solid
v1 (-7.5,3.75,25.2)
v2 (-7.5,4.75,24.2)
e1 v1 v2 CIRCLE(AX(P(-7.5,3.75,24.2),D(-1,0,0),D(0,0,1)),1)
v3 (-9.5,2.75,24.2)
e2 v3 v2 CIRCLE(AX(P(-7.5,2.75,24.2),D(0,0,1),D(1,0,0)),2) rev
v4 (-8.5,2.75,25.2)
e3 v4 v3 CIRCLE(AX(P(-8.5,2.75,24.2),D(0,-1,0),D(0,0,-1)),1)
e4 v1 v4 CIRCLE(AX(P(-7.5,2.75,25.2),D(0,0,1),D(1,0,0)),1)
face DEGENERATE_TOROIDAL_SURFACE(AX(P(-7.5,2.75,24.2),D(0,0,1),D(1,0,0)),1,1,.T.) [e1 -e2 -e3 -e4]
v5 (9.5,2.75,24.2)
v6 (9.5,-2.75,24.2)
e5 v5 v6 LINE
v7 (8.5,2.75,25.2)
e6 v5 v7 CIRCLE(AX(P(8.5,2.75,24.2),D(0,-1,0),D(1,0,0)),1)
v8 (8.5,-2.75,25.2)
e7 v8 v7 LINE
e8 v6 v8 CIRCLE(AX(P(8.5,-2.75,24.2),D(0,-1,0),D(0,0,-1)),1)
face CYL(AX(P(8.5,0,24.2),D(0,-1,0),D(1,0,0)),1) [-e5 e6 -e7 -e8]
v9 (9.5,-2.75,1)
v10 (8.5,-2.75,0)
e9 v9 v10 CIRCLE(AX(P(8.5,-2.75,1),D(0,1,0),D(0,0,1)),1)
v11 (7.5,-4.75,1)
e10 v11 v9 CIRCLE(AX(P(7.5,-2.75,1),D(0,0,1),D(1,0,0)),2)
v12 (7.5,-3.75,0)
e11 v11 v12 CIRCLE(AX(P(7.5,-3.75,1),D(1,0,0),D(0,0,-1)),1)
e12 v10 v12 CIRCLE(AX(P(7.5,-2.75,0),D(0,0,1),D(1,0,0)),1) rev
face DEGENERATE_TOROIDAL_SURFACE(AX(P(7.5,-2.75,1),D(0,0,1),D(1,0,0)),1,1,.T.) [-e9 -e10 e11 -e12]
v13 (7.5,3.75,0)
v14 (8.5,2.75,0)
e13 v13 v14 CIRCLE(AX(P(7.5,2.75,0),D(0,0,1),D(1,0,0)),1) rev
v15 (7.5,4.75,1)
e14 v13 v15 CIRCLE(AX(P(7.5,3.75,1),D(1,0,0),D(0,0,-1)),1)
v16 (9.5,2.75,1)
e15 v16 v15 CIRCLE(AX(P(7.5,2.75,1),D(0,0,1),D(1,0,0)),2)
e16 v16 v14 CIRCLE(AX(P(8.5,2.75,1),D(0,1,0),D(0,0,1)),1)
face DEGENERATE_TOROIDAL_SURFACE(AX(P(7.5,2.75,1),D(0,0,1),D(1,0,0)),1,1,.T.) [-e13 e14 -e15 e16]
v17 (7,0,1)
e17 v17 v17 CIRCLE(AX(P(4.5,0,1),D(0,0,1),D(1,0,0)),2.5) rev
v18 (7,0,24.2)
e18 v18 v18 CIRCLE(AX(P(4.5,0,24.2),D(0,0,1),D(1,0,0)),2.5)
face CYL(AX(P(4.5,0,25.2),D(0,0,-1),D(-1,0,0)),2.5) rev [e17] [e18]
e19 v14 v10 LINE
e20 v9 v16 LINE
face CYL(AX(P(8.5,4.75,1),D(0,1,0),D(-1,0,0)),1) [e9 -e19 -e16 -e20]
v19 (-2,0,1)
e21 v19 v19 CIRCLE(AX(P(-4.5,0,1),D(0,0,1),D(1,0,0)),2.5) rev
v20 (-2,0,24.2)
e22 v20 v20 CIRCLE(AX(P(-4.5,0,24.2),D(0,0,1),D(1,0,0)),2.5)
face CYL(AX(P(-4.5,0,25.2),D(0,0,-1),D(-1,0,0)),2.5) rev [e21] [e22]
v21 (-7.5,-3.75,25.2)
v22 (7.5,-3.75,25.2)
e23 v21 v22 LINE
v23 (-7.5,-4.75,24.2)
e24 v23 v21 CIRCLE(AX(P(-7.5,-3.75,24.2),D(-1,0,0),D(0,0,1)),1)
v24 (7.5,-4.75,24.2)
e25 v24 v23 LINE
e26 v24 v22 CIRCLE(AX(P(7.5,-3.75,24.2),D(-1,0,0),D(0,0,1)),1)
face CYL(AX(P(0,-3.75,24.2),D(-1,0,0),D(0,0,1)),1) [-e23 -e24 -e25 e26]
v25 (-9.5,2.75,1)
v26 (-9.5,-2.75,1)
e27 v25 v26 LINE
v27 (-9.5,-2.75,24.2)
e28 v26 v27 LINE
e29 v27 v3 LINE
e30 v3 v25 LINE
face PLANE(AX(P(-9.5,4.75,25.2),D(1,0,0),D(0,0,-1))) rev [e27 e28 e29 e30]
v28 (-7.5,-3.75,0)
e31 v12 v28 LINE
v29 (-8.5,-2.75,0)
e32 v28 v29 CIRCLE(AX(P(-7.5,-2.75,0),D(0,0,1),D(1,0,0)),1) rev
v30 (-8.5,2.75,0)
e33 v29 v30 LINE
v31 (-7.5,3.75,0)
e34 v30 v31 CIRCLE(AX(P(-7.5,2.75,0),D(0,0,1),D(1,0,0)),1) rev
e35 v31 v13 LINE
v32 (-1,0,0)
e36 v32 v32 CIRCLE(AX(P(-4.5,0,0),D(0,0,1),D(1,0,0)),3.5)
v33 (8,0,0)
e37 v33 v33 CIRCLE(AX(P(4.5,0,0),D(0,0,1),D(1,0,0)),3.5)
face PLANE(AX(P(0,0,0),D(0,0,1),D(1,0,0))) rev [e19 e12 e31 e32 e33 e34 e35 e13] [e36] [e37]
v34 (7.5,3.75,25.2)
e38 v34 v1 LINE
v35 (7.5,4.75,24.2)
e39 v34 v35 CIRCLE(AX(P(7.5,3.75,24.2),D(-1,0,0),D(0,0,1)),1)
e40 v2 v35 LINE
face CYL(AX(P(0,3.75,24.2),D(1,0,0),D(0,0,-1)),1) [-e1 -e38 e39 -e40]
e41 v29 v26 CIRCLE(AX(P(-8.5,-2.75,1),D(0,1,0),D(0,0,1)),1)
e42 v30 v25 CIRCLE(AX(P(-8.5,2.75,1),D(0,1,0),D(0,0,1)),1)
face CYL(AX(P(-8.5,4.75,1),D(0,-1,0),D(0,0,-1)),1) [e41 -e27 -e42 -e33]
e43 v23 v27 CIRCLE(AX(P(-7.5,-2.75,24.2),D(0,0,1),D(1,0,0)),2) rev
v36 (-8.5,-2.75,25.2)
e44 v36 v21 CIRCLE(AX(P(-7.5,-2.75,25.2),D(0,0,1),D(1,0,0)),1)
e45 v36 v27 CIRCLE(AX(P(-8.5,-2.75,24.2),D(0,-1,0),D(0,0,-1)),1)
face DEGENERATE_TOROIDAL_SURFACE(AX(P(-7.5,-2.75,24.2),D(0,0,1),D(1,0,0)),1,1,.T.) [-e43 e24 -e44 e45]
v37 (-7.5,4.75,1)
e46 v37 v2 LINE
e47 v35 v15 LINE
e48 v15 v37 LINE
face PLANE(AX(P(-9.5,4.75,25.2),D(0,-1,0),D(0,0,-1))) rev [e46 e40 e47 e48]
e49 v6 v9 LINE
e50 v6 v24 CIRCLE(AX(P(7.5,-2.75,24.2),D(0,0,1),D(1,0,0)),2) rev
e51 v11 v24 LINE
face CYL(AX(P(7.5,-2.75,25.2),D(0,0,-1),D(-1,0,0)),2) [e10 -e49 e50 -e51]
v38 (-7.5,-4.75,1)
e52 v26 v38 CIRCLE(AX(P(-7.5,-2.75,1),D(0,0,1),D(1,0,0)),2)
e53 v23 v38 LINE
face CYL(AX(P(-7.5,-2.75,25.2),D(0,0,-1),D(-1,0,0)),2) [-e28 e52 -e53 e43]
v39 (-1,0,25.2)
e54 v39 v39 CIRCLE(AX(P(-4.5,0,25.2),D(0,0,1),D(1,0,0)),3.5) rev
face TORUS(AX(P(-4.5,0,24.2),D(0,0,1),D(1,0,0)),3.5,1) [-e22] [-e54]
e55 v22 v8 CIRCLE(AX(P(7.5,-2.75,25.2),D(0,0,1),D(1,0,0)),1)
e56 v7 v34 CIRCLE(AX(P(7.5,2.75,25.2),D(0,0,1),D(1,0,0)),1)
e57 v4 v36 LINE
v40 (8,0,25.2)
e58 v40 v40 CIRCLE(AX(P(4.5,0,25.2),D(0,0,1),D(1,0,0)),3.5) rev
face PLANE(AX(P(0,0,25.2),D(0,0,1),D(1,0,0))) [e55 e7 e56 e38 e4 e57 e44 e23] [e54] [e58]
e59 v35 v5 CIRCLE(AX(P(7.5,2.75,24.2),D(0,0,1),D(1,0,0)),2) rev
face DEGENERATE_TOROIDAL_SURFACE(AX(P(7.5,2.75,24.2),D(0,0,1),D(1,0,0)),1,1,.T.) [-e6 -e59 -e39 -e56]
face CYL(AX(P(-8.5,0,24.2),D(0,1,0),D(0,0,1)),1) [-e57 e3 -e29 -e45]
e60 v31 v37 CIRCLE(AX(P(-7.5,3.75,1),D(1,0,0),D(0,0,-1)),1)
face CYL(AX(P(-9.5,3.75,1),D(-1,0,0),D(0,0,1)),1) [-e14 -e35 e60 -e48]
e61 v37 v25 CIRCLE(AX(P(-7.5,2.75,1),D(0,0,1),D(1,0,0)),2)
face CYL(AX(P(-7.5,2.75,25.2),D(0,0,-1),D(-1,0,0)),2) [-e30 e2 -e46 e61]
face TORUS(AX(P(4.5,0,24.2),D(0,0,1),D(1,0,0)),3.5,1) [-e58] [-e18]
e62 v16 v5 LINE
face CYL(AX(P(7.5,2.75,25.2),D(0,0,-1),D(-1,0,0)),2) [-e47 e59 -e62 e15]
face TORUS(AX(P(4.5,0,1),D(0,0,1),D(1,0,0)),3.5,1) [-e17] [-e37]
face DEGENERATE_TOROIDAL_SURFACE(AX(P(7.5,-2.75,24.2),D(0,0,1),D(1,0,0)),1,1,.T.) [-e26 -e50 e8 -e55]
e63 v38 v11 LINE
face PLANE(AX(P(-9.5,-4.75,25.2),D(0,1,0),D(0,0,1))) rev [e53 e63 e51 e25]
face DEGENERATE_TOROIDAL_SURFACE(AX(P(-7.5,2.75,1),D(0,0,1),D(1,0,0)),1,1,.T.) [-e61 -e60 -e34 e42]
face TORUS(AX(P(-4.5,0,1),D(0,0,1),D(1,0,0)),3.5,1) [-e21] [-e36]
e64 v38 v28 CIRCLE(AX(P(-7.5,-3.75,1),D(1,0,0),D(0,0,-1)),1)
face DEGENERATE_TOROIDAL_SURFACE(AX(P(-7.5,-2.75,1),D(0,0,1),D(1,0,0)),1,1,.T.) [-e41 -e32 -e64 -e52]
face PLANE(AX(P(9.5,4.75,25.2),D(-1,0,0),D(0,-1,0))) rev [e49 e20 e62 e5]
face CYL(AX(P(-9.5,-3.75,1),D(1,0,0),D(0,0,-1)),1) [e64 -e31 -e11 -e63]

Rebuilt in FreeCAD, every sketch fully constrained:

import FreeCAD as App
import Part
import Sketcher


def edges_at(feature, points):
    """Names of the edges that pass closest to the given points."""
    edges = feature.Shape.Edges
    near = lambda p: min(range(len(edges)), key=lambda i: edges[i].distToShape(Part.Vertex(*p))[0])
    return sorted({f"Edge{near(p) + 1}" for p in points})

doc = App.newDocument("Part")
body = doc.addObject("PartDesign::Body", "Body")

# Sketch on XY plane
sketch1 = body.newObject("Sketcher::SketchObject", "Sketch")
sketch1.AttachmentSupport = (doc.getObject("XY_Plane"), [""])
sketch1.MapMode = "FlatFace"
sketch1.addGeometry([
    Part.LineSegment(App.Vector(-9.5, 4.75, 0), App.Vector(-9.5, -4.75, 0)),  # 0
    Part.LineSegment(App.Vector(-9.5, -4.75, 0), App.Vector(9.5, -4.75, 0)),  # 1
    Part.LineSegment(App.Vector(9.5, -4.75, 0), App.Vector(9.5, 4.75, 0)),  # 2
    Part.LineSegment(App.Vector(9.5, 4.75, 0), App.Vector(-9.5, 4.75, 0)),  # 3
    Part.Circle(App.Vector(-4.5, 0, 0), App.Vector(0, 0, 1), 2.5),  # 4
    Part.Circle(App.Vector(4.5, 0, 0), App.Vector(0, 0, 1), 2.5),  # 5
], False)
sketch1.addConstraint([
    Sketcher.Constraint("Coincident", 0, 2, 1, 1),
    Sketcher.Constraint("Coincident", 1, 2, 2, 1),
    Sketcher.Constraint("Coincident", 2, 2, 3, 1),
    Sketcher.Constraint("Coincident", 3, 2, 0, 1),
    Sketcher.Constraint("Vertical", 0),
    Sketcher.Constraint("Horizontal", 1),
    Sketcher.Constraint("Vertical", 2),
    Sketcher.Constraint("Horizontal", 3),
    Sketcher.Constraint("Equal", 4, 5),
    Sketcher.Constraint("Symmetric", 4, 3, 5, 3, -1, 1),
    Sketcher.Constraint("Symmetric", 0, 2, 2, 2, -1, 1),
    Sketcher.Constraint("PointOnObject", 4, 3, -1),
    Sketcher.Constraint("Diameter", 4, 5.0),
    Sketcher.Constraint("DistanceX", 1, 1, 1, 2, 19.0),
    Sketcher.Constraint("DistanceY", 0, 2, 0, 1, 9.5),
    Sketcher.Constraint("DistanceX", 4, 3, 5, 3, 9.0),
])
pad1 = body.newObject("PartDesign::Pad", "Pad")
pad1.Profile = sketch1
pad1.Length = 25.2
doc.recompute()

fillet = body.newObject("PartDesign::Fillet", "Fillet")
fillet.Base = (pad1, edges_at(pad1, [
    (9.5, -4.75, 12.6),
    (-9.5, -4.75, 12.6),
    (-9.5, 4.75, 12.6),
    (9.5, 4.75, 12.6),
]))
fillet.Radius = 2
doc.recompute()

fillet2 = body.newObject("PartDesign::Fillet", "Fillet001")
fillet2.Base = (fillet, edges_at(fillet, [
    (-7, 0, 25.2),
    (2, 0, 25.2),
    (9.5, 0, 25.2),
    (0, -4.75, 25.2),
    (0, 4.75, 25.2),
    (-9.5, 0, 25.2),
    (-8.914, 4.164, 25.2),
    (-8.914, -4.164, 25.2),
    (8.914, 4.164, 25.2),
    (8.914, -4.164, 25.2),
]))
fillet2.Radius = 1
doc.recompute()

fillet3 = body.newObject("PartDesign::Fillet", "Fillet002")
fillet3.Base = (fillet2, edges_at(fillet2, [
    (-7, 0, 0),
    (2, 0, 0),
    (9.5, 0, 0),
    (0, -4.75, 0),
    (-9.5, 0, 0),
    (0, 4.75, 0),
    (-8.914, 4.164, 0),
    (-8.914, -4.164, 0),
    (8.914, 4.164, 0),
    (8.914, -4.164, 0),
]))
fillet3.Radius = 1

doc.recompute()
